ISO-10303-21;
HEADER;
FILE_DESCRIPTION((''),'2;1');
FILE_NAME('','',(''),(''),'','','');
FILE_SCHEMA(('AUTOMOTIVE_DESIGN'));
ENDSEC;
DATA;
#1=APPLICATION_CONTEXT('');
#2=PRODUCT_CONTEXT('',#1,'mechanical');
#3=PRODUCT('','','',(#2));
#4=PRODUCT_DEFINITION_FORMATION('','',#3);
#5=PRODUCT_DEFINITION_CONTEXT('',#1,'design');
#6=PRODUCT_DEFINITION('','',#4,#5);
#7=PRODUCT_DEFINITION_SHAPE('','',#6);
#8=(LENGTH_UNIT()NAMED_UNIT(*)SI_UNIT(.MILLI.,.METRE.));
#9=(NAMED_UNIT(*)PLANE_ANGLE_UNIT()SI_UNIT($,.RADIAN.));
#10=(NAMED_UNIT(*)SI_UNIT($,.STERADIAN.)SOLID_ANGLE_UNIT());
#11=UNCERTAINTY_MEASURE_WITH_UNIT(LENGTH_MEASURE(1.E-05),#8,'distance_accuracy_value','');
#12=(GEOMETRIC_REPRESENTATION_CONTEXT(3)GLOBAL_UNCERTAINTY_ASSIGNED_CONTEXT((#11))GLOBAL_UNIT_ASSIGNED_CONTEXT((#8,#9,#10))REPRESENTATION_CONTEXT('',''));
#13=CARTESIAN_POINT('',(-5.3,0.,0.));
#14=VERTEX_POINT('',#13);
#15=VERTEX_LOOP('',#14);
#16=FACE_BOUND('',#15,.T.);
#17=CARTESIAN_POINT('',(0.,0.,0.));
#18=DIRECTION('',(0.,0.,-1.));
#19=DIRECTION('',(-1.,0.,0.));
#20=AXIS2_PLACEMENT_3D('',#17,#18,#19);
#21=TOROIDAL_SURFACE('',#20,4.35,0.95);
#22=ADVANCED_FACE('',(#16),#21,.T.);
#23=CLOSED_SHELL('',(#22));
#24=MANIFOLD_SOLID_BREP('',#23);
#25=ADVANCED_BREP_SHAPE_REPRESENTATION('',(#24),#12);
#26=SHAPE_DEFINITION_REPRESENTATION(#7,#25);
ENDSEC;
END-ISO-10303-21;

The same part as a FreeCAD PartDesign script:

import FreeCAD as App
import Part
import Sketcher
from FreeCAD import Vector

doc = App.newDocument("Part")
body = doc.addObject("PartDesign::Body", "Body")

sketch1 = doc.addObject("Sketcher::SketchObject", "Sketch")
body.addObject(sketch1)
sketch1.AttachmentSupport = (doc.XZ_Plane, [""])
sketch1.MapMode = "FlatFace"
sketch1.addGeometry(Part.Circle(Vector(-4.3, 0, 0), Vector(0, 0, 1), 0.9), False)
sketch1.addConstraint([
    Sketcher.Constraint("PointOnObject", 0, 3, -1),
    Sketcher.Constraint("Diameter", 0, 1.9),
    Sketcher.Constraint("DistanceX", 0, 3, -1, 1, 4.35),
])

sketch2 = doc.addObject("Sketcher::SketchObject", "Sketch001")
body.addObject(sketch2)
sketch2.AttachmentSupport = (doc.XY_Plane, [""])
sketch2.MapMode = "FlatFace"
sketch2.addGeometry(Part.Circle(Vector(0, 0, 0), Vector(0, 0, 1), 3.4), False)
sketch2.addConstraint([
    Sketcher.Constraint("Coincident", 0, 3, -1, 1),
    Sketcher.Constraint("Diameter", 0, 6.8),
])
doc.recompute()

additivepipe = doc.addObject("PartDesign::AdditivePipe", "AdditivePipe")
body.addObject(additivepipe)
additivepipe.Profile = sketch1
additivepipe.Spine = (sketch2, ["Edge1"])

doc.recompute()
